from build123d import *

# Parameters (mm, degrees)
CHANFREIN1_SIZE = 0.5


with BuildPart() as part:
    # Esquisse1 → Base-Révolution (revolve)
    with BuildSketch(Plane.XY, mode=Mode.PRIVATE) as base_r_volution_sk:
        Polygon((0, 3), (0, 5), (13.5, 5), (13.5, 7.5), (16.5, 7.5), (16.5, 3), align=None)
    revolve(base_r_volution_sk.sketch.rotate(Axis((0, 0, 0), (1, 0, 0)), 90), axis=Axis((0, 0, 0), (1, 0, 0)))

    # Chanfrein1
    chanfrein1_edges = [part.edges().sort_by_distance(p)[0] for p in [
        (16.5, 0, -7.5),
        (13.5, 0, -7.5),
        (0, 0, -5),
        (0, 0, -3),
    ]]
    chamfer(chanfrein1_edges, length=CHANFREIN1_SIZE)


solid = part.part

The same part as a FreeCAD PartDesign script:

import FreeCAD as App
import Part
import Sketcher

V = App.Vector
Q = App.Units.Quantity


def edges_at(feature, points):
    """Names of the edges that pass closest to the given points."""
    edges = feature.Shape.Edges
    near = lambda p: min(range(len(edges)), key=lambda i: edges[i].distToShape(Part.Vertex(*p))[0])
    return sorted({f"Edge{near(p) + 1}" for p in points})

doc = App.newDocument("Part")
body = doc.addObject("PartDesign::Body", "Body")

sketch1 = body.newObject("Sketcher::SketchObject", "Sketch")
sketch1.AttachmentSupport = (doc.getObject("XY_Plane"), [""])
sketch1.MapMode = "FlatFace"
sketch1.addGeometry([
    Part.LineSegment(V(0, 5, 0), V(0, 3, 0)),
    Part.LineSegment(V(0, 3, 0), V(16.5, 3, 0)),
    Part.LineSegment(V(16.5, 3, 0), V(16.5, 7.5, 0)),
    Part.LineSegment(V(16.5, 7.5, 0), V(13.5, 7.5, 0)),
    Part.LineSegment(V(13.5, 7.5, 0), V(13.5, 5, 0)),
    Part.LineSegment(V(13.5, 5, 0), V(0, 5, 0)),
], False)
sketch1.addConstraint([
    Sketcher.Constraint("Coincident", 0, 2, 1, 1),
    Sketcher.Constraint("Coincident", 1, 2, 2, 1),
    Sketcher.Constraint("Coincident", 2, 2, 3, 1),
    Sketcher.Constraint("Coincident", 3, 2, 4, 1),
    Sketcher.Constraint("Coincident", 4, 2, 5, 1),
    Sketcher.Constraint("Coincident", 5, 2, 0, 1),
    Sketcher.Constraint("Vertical", 0),
    Sketcher.Constraint("Horizontal", 1),
    Sketcher.Constraint("Vertical", 2),
    Sketcher.Constraint("Horizontal", 3),
    Sketcher.Constraint("Vertical", 4),
    Sketcher.Constraint("Horizontal", 5),
    Sketcher.Constraint("PointOnObject", 0, 2, -2),
    Sketcher.Constraint("DistanceX", 3, 2, 3, 1, Q("3 mm")),
    Sketcher.Constraint("DistanceY", 0, 2, 0, 1, Q("2 mm")),
    Sketcher.Constraint("DistanceX", 1, 1, 1, 2, Q("16.5 mm")),
    Sketcher.Constraint("DistanceY", 2, 1, 2, 2, Q("4.5 mm")),
    Sketcher.Constraint("DistanceY", -1, 1, 0, 2, Q("3 mm")),
])
revolution = body.newObject("PartDesign::Revolution", "Revolution")
revolution.Profile = sketch1
revolution.ReferenceAxis = (sketch1, ["H_Axis"])
revolution.Angle = 360
doc.recompute()

chamfer = body.newObject("PartDesign::Chamfer", "Chamfer")
chamfer.Base = (revolution, edges_at(revolution, [
    (16.5, 0, -7.5),
    (13.5, 0, -7.5),
    (0, 0, -5),
    (0, 0, -3),
]))
chamfer.Size = 0.5

doc.recompute()
